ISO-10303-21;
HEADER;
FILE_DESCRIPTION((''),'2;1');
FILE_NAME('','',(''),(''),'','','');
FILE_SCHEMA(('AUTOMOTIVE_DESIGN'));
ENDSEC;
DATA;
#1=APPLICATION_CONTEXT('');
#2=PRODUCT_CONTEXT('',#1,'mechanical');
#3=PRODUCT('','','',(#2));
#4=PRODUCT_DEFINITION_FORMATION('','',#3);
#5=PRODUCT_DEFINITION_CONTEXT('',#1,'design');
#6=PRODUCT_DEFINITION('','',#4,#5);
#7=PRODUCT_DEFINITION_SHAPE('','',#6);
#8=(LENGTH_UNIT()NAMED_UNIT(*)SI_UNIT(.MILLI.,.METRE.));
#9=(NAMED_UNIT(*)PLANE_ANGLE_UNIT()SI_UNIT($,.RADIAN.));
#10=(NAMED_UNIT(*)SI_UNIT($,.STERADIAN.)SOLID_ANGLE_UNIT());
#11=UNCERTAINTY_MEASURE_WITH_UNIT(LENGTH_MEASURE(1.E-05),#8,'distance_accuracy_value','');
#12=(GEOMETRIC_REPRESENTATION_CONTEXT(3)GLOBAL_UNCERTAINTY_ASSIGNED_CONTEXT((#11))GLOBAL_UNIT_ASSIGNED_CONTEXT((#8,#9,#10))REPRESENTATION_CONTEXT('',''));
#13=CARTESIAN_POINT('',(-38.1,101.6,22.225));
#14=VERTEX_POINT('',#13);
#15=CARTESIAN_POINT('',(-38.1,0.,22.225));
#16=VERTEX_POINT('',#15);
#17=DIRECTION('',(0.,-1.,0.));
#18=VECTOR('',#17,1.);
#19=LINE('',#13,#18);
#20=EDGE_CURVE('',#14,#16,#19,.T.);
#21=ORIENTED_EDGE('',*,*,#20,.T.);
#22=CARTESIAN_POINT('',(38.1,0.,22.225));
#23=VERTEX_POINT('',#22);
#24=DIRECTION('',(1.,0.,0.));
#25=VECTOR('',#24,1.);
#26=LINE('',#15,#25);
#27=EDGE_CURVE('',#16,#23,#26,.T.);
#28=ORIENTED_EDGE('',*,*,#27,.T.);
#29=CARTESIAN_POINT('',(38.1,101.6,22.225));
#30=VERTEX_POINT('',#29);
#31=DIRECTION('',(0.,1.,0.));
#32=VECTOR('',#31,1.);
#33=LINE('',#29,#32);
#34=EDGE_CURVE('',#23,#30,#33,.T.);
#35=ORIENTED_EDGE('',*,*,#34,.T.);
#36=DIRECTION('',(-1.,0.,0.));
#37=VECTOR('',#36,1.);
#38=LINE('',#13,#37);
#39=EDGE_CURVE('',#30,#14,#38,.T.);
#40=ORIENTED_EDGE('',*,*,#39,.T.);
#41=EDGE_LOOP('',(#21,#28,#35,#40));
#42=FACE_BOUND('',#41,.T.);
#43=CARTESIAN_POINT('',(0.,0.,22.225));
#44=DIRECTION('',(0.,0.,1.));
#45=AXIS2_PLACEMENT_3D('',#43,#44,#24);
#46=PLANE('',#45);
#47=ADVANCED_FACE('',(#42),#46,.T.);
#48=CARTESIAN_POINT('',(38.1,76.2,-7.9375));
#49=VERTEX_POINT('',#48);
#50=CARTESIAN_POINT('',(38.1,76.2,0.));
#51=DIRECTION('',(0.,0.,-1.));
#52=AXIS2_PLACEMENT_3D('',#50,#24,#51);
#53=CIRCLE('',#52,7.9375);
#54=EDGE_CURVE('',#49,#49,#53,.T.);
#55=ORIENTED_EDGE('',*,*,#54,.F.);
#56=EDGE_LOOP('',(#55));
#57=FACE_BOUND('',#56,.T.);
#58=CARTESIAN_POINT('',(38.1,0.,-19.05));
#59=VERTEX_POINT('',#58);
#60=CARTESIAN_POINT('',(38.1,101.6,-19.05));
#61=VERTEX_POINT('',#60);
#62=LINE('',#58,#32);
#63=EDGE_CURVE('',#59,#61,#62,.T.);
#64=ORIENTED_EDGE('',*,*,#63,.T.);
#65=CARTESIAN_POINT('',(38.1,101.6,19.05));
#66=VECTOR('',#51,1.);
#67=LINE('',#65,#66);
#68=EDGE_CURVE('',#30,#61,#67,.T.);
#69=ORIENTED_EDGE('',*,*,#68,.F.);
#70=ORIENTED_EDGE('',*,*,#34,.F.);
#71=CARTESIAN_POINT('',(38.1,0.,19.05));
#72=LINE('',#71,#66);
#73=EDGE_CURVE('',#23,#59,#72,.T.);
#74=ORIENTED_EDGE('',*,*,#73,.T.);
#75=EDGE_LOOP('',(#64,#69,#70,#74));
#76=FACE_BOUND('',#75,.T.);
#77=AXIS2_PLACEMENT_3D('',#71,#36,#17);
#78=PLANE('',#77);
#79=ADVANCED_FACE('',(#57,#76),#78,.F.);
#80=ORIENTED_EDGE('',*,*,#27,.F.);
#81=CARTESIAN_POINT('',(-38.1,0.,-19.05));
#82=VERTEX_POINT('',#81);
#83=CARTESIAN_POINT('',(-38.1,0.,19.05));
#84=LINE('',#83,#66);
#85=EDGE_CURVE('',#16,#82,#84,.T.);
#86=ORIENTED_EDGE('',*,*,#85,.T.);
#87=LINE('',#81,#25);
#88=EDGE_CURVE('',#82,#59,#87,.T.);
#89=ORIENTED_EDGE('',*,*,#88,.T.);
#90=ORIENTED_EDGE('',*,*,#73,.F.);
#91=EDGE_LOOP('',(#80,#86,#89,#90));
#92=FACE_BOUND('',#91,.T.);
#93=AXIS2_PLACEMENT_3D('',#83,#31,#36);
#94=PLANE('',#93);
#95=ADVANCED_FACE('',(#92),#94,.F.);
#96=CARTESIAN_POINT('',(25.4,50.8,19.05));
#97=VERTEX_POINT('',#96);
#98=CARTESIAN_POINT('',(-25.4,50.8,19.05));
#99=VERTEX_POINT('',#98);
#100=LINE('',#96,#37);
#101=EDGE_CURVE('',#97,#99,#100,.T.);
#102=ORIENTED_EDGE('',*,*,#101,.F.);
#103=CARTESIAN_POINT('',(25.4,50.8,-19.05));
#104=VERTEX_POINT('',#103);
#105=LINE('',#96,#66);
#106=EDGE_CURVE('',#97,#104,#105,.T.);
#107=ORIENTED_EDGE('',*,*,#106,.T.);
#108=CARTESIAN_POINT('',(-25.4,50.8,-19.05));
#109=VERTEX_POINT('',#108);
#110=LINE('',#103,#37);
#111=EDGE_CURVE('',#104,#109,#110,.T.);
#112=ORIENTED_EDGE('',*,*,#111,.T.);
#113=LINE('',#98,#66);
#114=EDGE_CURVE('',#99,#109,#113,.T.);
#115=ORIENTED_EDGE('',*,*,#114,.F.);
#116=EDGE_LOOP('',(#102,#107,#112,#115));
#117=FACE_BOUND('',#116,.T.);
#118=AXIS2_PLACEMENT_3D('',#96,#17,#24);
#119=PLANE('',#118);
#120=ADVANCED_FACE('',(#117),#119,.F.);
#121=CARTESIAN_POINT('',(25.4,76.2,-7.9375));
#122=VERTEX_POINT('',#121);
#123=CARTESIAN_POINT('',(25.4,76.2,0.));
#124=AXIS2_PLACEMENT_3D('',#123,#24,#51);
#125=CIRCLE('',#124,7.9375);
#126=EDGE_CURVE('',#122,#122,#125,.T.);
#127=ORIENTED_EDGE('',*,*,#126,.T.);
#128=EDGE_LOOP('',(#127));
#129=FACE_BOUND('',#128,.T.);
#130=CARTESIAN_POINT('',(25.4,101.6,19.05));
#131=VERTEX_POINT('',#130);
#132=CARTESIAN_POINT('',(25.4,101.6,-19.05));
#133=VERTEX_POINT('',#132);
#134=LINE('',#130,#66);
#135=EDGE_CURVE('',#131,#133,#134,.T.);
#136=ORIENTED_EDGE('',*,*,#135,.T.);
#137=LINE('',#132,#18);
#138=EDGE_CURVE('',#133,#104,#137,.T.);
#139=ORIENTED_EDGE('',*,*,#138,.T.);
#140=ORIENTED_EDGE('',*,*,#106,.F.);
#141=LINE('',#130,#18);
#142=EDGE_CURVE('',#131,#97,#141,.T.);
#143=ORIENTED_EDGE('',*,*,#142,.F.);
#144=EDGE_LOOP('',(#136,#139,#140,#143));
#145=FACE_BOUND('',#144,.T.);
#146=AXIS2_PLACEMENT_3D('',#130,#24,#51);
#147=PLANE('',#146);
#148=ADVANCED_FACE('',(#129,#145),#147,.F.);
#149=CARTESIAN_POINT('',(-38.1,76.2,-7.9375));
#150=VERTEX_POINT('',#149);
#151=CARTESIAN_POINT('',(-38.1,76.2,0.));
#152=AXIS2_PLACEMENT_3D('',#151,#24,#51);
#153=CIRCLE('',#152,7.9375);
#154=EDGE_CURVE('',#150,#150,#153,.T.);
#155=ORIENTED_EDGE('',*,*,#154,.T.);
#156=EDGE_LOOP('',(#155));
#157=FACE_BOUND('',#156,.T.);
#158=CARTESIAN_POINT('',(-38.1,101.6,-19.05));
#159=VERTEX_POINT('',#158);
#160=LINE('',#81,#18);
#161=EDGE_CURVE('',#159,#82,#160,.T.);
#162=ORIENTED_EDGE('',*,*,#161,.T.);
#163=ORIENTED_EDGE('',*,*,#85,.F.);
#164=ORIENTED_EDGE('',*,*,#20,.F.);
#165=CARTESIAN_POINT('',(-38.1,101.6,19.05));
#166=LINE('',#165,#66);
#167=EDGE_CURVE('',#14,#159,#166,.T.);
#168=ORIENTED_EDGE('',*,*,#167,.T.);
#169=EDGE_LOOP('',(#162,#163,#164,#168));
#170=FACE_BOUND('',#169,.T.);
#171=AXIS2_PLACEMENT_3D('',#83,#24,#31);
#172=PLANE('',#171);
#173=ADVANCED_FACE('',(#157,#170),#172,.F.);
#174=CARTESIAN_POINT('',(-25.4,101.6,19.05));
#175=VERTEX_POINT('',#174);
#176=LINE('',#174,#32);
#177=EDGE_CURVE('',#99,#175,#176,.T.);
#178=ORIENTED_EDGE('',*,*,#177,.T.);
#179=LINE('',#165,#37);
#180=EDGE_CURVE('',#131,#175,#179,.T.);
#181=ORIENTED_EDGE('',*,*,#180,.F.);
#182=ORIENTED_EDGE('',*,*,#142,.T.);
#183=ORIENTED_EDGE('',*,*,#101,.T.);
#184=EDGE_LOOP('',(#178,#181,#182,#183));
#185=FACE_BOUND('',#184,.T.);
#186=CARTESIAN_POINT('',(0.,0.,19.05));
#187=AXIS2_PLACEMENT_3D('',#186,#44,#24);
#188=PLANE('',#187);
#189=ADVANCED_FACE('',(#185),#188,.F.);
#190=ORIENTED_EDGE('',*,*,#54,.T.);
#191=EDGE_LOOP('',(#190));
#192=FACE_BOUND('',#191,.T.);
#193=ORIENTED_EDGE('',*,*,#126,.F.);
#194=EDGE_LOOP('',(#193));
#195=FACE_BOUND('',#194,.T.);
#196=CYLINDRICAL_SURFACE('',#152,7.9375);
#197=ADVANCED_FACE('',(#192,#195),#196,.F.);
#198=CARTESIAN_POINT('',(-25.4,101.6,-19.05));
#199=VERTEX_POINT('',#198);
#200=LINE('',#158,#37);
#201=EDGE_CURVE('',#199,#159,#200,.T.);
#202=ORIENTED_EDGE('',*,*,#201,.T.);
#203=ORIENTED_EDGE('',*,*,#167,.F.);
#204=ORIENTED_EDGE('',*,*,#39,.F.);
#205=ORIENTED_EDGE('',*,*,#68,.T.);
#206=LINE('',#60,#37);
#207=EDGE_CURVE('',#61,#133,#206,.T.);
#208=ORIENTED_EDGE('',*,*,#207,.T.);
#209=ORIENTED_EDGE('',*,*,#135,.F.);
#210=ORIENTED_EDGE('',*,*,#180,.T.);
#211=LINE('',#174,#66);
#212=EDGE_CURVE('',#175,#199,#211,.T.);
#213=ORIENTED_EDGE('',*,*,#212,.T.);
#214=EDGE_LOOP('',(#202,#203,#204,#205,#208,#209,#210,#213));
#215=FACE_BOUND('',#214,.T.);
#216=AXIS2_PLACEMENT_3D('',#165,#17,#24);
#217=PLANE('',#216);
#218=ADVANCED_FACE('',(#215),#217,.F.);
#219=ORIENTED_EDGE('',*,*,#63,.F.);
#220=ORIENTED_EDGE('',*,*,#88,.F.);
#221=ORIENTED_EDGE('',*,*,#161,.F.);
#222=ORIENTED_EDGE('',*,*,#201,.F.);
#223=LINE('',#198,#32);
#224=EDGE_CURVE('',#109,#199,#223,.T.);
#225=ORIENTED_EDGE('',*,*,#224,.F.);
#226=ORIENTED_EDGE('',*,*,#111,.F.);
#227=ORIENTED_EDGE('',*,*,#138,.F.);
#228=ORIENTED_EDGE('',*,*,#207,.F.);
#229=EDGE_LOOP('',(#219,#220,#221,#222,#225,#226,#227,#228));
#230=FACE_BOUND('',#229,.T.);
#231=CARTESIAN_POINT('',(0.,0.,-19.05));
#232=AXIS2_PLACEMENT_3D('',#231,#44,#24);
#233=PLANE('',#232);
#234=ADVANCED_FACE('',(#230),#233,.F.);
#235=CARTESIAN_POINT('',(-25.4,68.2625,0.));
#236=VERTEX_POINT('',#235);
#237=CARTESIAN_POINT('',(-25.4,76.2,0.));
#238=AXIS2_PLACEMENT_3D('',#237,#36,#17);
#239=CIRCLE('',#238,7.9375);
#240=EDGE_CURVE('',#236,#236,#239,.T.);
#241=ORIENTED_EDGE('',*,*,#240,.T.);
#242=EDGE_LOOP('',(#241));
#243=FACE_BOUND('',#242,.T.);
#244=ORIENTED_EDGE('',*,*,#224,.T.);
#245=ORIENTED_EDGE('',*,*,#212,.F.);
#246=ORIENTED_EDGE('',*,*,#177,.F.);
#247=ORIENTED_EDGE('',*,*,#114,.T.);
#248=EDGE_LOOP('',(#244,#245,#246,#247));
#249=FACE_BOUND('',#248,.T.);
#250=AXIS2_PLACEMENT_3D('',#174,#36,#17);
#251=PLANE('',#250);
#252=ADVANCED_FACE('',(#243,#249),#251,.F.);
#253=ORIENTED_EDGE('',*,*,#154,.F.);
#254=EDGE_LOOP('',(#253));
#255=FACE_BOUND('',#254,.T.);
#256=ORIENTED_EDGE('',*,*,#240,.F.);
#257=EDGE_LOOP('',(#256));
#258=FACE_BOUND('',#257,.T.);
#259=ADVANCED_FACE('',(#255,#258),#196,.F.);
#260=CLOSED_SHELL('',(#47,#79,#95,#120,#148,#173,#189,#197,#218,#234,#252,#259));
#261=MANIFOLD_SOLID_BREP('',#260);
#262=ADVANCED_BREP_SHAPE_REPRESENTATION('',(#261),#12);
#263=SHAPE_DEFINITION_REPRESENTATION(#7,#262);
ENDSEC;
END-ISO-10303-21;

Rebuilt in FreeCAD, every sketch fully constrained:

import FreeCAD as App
import Part
import Sketcher
Q = App.Units.Quantity


def add_polygon(sketch, points):
    """Adds a closed chain of lines whose ends are joined by coincident constraints."""
    first, n = sketch.GeometryCount, len(points)
    for a, b in zip(points, points[1:] + points[:1]):
        sketch.addGeometry(Part.LineSegment(App.Vector(*a, 0), App.Vector(*b, 0)), False)
    for i in range(n):
        sketch.addConstraint(Sketcher.Constraint("Coincident", first + i, 2, first + (i + 1) % n, 1))

doc = App.newDocument("Part")
body = doc.addObject("PartDesign::Body", "Body")

sketch1 = body.newObject("Sketcher::SketchObject", "Sketch")
sketch1.AttachmentSupport = (doc.getObject("XY_Plane"), [""])
sketch1.MapMode = "FlatFace"
add_polygon(sketch1, [(-38, 0), (38, 0), (38, 102), (25, 102), (25, 51), (-25, 51), (-25, 102), (-38, 102)])
sketch1.addConstraint([
    Sketcher.Constraint("Horizontal", 0),
    Sketcher.Constraint("Vertical", 1),
    Sketcher.Constraint("Horizontal", 2),
    Sketcher.Constraint("Vertical", 3),
    Sketcher.Constraint("Horizontal", 4),
    Sketcher.Constraint("Vertical", 5),
    Sketcher.Constraint("Horizontal", 6),
    Sketcher.Constraint("Vertical", 7),
    Sketcher.Constraint("Symmetric", 0, 2, 7, 2, -1, 1),
    Sketcher.Constraint("Symmetric", 2, 2, 5, 2, -2),
    Sketcher.Constraint("Equal", 4, 3),
    Sketcher.Constraint("DistanceX", 0, 1, 0, 2, Q("3 in")),
    Sketcher.Constraint("DistanceX", 4, 2, 4, 1, Q("2 in")),
    Sketcher.Constraint("DistanceY", 1, 1, 1, 2, Q("4 in")),
])
pad1 = body.newObject("PartDesign::Pad", "Pad")
pad1.Profile = sketch1
pad1.Length = Q("1.5 in")
pad1.Midplane = True

sketch2 = body.newObject("Sketcher::SketchObject", "Sketch001")
sketch2.AttachmentSupport = (doc.getObject("YZ_Plane"), [""])
sketch2.MapMode = "FlatFace"
sketch2.addGeometry(Part.Circle(App.Vector(76, 0, 0), App.Vector(0, 0, 1), 8), False)
sketch2.addConstraint([
    Sketcher.Constraint("PointOnObject", 0, 3, -1),
    Sketcher.Constraint("Diameter", 0, Q("0.625 in")),
    Sketcher.Constraint("DistanceX", -1, 1, 0, 3, Q("3 in")),
])
pocket1 = body.newObject("PartDesign::Pocket", "Pocket")
pocket1.Profile = sketch2
pocket1.Type = "ThroughAll"
pocket1.Midplane = True

sketch3 = body.newObject("Sketcher::SketchObject", "Sketch002")
sketch3.AttachmentSupport = (doc.getObject("XY_Plane"), [""])
sketch3.MapMode = "FlatFace"
sketch3.AttachmentOffset = App.Placement(App.Vector(0, 0, 0.75 * 25.4), App.Rotation())
add_polygon(sketch3, [(-38, 102), (-38, 0), (38, 0), (38, 102)])
sketch3.addConstraint([
    Sketcher.Constraint("Vertical", 0),
    Sketcher.Constraint("Horizontal", 1),
    Sketcher.Constraint("Vertical", 2),
    Sketcher.Constraint("Horizontal", 3),
    Sketcher.Constraint("Symmetric", 0, 2, 1, 2, -1, 1),
    Sketcher.Constraint("DistanceX", 1, 1, 1, 2, Q("3 in")),
    Sketcher.Constraint("DistanceY", 0, 2, 0, 1, Q("4 in")),
])
pad2 = body.newObject("PartDesign::Pad", "Pad001")
pad2.Profile = sketch3
pad2.Length = Q("0.125 in")

doc.recompute()
